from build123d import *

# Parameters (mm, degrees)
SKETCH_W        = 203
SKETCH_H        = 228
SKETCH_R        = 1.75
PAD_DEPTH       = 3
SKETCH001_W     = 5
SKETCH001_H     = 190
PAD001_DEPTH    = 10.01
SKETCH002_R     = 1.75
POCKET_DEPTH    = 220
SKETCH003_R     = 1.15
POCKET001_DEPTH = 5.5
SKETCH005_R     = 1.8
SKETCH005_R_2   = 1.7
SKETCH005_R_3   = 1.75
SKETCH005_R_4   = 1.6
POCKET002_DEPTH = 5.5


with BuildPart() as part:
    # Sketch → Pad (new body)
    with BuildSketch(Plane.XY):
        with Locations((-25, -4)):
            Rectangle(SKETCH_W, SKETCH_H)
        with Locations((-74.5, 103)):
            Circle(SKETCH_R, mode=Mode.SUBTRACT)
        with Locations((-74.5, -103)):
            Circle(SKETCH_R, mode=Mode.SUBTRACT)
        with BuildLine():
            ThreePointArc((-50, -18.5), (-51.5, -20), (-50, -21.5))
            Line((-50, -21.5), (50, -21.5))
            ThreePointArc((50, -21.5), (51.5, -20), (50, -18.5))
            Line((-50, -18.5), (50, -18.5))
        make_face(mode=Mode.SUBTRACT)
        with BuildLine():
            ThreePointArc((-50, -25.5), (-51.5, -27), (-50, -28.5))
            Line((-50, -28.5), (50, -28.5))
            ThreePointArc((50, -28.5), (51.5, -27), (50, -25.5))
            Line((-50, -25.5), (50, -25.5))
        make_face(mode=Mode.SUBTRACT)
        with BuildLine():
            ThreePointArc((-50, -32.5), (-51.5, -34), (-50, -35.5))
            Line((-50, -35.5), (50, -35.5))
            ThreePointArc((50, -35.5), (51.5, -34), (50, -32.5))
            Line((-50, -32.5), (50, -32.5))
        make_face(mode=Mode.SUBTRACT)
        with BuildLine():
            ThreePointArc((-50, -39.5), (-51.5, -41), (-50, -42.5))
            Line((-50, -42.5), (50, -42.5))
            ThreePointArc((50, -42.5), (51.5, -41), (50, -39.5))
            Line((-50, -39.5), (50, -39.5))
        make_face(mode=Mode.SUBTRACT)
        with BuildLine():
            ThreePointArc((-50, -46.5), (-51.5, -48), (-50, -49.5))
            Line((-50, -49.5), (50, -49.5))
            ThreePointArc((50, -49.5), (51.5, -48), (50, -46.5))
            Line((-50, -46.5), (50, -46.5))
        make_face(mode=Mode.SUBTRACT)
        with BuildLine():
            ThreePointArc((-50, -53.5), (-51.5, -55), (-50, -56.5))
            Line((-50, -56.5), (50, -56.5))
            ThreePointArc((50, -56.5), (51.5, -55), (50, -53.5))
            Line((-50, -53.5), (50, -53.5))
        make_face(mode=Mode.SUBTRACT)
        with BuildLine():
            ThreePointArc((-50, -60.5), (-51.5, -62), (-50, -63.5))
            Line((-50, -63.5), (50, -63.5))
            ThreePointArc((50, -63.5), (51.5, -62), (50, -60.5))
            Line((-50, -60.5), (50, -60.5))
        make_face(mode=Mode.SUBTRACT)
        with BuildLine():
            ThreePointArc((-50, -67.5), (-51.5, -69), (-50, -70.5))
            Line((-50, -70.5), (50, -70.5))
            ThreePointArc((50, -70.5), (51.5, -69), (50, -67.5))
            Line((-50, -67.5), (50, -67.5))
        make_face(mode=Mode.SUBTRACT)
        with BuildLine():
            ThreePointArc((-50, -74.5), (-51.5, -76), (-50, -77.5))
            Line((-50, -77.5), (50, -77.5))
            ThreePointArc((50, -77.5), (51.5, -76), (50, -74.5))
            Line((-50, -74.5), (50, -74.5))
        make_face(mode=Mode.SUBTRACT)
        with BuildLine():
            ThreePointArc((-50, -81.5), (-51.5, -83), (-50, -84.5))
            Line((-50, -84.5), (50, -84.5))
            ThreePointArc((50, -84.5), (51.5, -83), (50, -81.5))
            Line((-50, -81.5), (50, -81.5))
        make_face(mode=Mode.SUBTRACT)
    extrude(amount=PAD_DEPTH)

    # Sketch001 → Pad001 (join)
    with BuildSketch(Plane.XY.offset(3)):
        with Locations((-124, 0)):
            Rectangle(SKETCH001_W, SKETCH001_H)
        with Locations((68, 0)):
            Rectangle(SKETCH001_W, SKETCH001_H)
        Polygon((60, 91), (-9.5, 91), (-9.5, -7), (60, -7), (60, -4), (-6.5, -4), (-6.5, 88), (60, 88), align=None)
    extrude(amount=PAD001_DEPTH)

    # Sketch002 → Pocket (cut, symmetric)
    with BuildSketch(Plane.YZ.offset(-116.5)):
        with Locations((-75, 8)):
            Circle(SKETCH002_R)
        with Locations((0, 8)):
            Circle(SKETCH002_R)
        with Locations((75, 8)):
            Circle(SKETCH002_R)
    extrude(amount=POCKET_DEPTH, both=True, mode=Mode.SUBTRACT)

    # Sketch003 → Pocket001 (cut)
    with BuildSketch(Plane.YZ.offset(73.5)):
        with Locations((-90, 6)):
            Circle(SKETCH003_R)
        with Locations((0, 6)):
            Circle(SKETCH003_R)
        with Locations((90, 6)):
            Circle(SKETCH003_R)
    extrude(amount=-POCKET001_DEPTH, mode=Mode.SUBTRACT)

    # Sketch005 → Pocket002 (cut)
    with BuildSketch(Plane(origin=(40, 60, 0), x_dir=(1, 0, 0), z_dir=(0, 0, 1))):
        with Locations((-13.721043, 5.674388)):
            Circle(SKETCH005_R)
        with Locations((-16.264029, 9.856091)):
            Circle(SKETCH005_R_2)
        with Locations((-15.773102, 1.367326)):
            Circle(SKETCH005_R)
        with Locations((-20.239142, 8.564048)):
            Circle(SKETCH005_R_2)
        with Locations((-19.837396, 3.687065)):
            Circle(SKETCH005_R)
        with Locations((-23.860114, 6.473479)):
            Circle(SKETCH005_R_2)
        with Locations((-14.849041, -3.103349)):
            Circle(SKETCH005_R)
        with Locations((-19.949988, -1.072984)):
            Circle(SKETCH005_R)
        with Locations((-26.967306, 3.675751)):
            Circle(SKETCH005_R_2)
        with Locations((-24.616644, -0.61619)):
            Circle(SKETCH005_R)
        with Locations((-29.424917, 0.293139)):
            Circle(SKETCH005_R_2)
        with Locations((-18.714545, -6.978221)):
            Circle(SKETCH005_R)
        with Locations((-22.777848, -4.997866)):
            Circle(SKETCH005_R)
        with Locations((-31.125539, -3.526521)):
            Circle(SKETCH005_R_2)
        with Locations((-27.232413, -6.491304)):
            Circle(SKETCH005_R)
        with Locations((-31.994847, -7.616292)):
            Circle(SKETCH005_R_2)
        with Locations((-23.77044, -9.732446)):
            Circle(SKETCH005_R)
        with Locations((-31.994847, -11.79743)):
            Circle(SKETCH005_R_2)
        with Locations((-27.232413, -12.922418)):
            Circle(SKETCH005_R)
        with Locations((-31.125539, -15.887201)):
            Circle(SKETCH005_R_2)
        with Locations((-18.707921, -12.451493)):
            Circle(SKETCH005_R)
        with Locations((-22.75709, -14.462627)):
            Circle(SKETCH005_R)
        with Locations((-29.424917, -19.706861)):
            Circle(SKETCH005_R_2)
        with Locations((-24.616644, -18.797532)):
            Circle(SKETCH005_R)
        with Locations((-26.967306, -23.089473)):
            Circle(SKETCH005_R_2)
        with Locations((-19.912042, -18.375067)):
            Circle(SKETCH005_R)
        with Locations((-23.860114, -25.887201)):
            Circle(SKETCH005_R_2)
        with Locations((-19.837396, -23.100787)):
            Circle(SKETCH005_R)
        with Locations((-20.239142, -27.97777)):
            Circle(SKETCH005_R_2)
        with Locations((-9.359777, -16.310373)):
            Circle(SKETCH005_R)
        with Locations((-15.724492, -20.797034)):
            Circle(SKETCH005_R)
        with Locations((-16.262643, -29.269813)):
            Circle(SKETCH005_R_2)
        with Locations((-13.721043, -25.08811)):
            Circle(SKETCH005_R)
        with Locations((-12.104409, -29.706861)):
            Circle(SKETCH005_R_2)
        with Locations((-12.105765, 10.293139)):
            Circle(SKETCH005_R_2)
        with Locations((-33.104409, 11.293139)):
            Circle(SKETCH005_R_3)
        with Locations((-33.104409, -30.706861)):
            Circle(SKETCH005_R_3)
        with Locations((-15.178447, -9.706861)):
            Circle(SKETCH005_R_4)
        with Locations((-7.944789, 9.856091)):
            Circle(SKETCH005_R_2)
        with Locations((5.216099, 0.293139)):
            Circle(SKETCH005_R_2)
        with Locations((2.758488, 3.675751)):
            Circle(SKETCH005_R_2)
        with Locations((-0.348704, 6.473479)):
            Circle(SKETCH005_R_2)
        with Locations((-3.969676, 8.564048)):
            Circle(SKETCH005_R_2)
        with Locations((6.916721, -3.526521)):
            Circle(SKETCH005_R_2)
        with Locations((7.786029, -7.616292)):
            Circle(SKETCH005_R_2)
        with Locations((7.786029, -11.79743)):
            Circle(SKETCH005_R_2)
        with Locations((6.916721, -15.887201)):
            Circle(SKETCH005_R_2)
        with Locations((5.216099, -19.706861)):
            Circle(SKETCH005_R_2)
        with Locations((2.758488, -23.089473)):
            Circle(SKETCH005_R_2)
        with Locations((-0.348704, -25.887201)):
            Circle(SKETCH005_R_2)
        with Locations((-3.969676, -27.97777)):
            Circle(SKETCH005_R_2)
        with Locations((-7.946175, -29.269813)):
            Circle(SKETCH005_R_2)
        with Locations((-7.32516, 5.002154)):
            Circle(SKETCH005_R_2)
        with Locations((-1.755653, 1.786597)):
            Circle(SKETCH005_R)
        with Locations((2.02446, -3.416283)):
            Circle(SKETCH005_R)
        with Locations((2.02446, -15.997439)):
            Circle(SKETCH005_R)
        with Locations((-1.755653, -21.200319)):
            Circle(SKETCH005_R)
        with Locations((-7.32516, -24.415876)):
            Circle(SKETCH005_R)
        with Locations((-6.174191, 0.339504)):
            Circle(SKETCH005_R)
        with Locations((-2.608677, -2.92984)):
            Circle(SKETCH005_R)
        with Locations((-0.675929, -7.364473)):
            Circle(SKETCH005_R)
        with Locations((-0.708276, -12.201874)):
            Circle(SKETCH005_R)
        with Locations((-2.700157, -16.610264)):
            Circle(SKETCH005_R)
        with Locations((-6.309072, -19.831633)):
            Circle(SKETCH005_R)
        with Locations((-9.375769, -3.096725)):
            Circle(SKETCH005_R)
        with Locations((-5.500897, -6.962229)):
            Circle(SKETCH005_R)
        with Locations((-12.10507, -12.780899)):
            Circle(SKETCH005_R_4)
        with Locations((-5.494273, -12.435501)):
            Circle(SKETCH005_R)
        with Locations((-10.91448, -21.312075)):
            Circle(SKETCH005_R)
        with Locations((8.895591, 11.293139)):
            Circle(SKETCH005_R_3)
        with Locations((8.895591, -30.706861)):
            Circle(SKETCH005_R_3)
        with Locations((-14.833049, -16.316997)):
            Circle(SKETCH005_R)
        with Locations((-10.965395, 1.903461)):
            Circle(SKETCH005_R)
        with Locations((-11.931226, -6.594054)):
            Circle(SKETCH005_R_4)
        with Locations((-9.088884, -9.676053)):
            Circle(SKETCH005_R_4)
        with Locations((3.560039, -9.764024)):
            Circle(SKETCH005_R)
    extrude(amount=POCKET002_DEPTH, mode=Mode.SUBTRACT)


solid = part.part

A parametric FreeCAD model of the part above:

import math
import FreeCAD as App
import Part
import Sketcher

doc = App.newDocument("Part")
body = doc.addObject("PartDesign::Body", "Body")

# Sketch on XY plane
sketch1 = body.newObject("Sketcher::SketchObject", "Sketch")
sketch1.AttachmentSupport = (doc.getObject("XY_Plane"), [""])
sketch1.MapMode = "FlatFace"
sketch1.addGeometry([
    Part.LineSegment(App.Vector(-126.5, 110, 0), App.Vector(-126.5, -118, 0)),  # 0
    Part.LineSegment(App.Vector(-126.5, -118, 0), App.Vector(76.5, -118, 0)),  # 1
    Part.LineSegment(App.Vector(76.5, -118, 0), App.Vector(76.5, 110, 0)),  # 2
    Part.LineSegment(App.Vector(76.5, 110, 0), App.Vector(-126.5, 110, 0)),  # 3
    Part.Circle(App.Vector(-74.5, -103, 0), App.Vector(0, 0, 1), 1.8),  # 4
    Part.ArcOfCircle(Part.Circle(App.Vector(-50, -83, 0), App.Vector(0, 0, 1), 1.5), math.radians(90), math.radians(270)),  # 5
    Part.LineSegment(App.Vector(-50, -81.5, 0), App.Vector(50, -81.5, 0)),  # 6
    Part.ArcOfCircle(Part.Circle(App.Vector(50, -83, 0), App.Vector(0, 0, 1), 1.5), math.radians(-90), math.radians(90)),  # 7
    Part.LineSegment(App.Vector(50, -84.5, 0), App.Vector(-50, -84.5, 0)),  # 8
    Part.ArcOfCircle(Part.Circle(App.Vector(-50, -76, 0), App.Vector(0, 0, 1), 1.5), math.radians(90), math.radians(270)),  # 9
    Part.LineSegment(App.Vector(-50, -74.5, 0), App.Vector(50, -74.5, 0)),  # 10
    Part.ArcOfCircle(Part.Circle(App.Vector(50, -76, 0), App.Vector(0, 0, 1), 1.5), math.radians(-90), math.radians(90)),  # 11
    Part.LineSegment(App.Vector(50, -77.5, 0), App.Vector(-50, -77.5, 0)),  # 12
    Part.ArcOfCircle(Part.Circle(App.Vector(-50, -69, 0), App.Vector(0, 0, 1), 1.5), math.radians(90), math.radians(270)),  # 13
    Part.LineSegment(App.Vector(-50, -67.5, 0), App.Vector(50, -67.5, 0)),  # 14
    Part.ArcOfCircle(Part.Circle(App.Vector(50, -69, 0), App.Vector(0, 0, 1), 1.5), math.radians(-90), math.radians(90)),  # 15
    Part.LineSegment(App.Vector(50, -70.5, 0), App.Vector(-50, -70.5, 0)),  # 16
    Part.ArcOfCircle(Part.Circle(App.Vector(-50, -62, 0), App.Vector(0, 0, 1), 1.5), math.radians(90), math.radians(270)),  # 17
    Part.LineSegment(App.Vector(-50, -60.5, 0), App.Vector(50, -60.5, 0)),  # 18
    Part.ArcOfCircle(Part.Circle(App.Vector(50, -62, 0), App.Vector(0, 0, 1), 1.5), math.radians(-90), math.radians(90)),  # 19
    Part.LineSegment(App.Vector(50, -63.5, 0), App.Vector(-50, -63.5, 0)),  # 20
    Part.ArcOfCircle(Part.Circle(App.Vector(-50, -55, 0), App.Vector(0, 0, 1), 1.5), math.radians(90), math.radians(270)),  # 21
    Part.LineSegment(App.Vector(-50, -53.5, 0), App.Vector(50, -53.5, 0)),  # 22
    Part.ArcOfCircle(Part.Circle(App.Vector(50, -55, 0), App.Vector(0, 0, 1), 1.5), math.radians(-90), math.radians(90)),  # 23
    Part.LineSegment(App.Vector(50, -56.5, 0), App.Vector(-50, -56.5, 0)),  # 24
    Part.ArcOfCircle(Part.Circle(App.Vector(-50, -48, 0), App.Vector(0, 0, 1), 1.5), math.radians(90), math.radians(270)),  # 25
    Part.LineSegment(App.Vector(-50, -46.5, 0), App.Vector(50, -46.5, 0)),  # 26
    Part.ArcOfCircle(Part.Circle(App.Vector(50, -48, 0), App.Vector(0, 0, 1), 1.5), math.radians(-90), math.radians(90)),  # 27
    Part.LineSegment(App.Vector(50, -49.5, 0), App.Vector(-50, -49.5, 0)),  # 28
    Part.ArcOfCircle(Part.Circle(App.Vector(-50, -41, 0), App.Vector(0, 0, 1), 1.5), math.radians(90), math.radians(270)),  # 29
    Part.LineSegment(App.Vector(-50, -39.5, 0), App.Vector(50, -39.5, 0)),  # 30
    Part.ArcOfCircle(Part.Circle(App.Vector(50, -41, 0), App.Vector(0, 0, 1), 1.5), math.radians(-90), math.radians(90)),  # 31
    Part.LineSegment(App.Vector(50, -42.5, 0), App.Vector(-50, -42.5, 0)),  # 32
    Part.ArcOfCircle(Part.Circle(App.Vector(-50, -34, 0), App.Vector(0, 0, 1), 1.5), math.radians(90), math.radians(270)),  # 33
    Part.LineSegment(App.Vector(-50, -32.5, 0), App.Vector(50, -32.5, 0)),  # 34
    Part.ArcOfCircle(Part.Circle(App.Vector(50, -34, 0), App.Vector(0, 0, 1), 1.5), math.radians(-90), math.radians(90)),  # 35
    Part.LineSegment(App.Vector(50, -35.5, 0), App.Vector(-50, -35.5, 0)),  # 36
    Part.ArcOfCircle(Part.Circle(App.Vector(-50, -27, 0), App.Vector(0, 0, 1), 1.5), math.radians(90), math.radians(270)),  # 37
    Part.LineSegment(App.Vector(-50, -25.5, 0), App.Vector(50, -25.5, 0)),  # 38
    Part.ArcOfCircle(Part.Circle(App.Vector(50, -27, 0), App.Vector(0, 0, 1), 1.5), math.radians(-90), math.radians(90)),  # 39
    Part.LineSegment(App.Vector(50, -28.5, 0), App.Vector(-50, -28.5, 0)),  # 40
    Part.ArcOfCircle(Part.Circle(App.Vector(-50, -20, 0), App.Vector(0, 0, 1), 1.5), math.radians(90), math.radians(270)),  # 41
    Part.LineSegment(App.Vector(-50, -18.5, 0), App.Vector(50, -18.5, 0)),  # 42
    Part.ArcOfCircle(Part.Circle(App.Vector(50, -20, 0), App.Vector(0, 0, 1), 1.5), math.radians(-90), math.radians(90)),  # 43
    Part.LineSegment(App.Vector(50, -21.5, 0), App.Vector(-50, -21.5, 0)),  # 44
    Part.Circle(App.Vector(-74.5, 103, 0), App.Vector(0, 0, 1), 1.8),  # 45
], False)
sketch1.addConstraint([
    Sketcher.Constraint("Coincident", 0, 2, 1, 1),
    Sketcher.Constraint("Coincident", 1, 2, 2, 1),
    Sketcher.Constraint("Coincident", 2, 2, 3, 1),
    Sketcher.Constraint("Coincident", 3, 2, 0, 1),
    Sketcher.Constraint("Tangent", 5, 1, 6, 1),
    Sketcher.Constraint("Tangent", 6, 2, 7, 2),
    Sketcher.Constraint("Tangent", 7, 1, 8, 1),
    Sketcher.Constraint("Tangent", 8, 2, 5, 2),
    Sketcher.Constraint("Tangent", 9, 1, 10, 1),
    Sketcher.Constraint("Tangent", 10, 2, 11, 2),
    Sketcher.Constraint("Tangent", 11, 1, 12, 1),
    Sketcher.Constraint("Tangent", 12, 2, 9, 2),
    Sketcher.Constraint("Tangent", 13, 1, 14, 1),
    Sketcher.Constraint("Tangent", 14, 2, 15, 2),
    Sketcher.Constraint("Tangent", 15, 1, 16, 1),
    Sketcher.Constraint("Tangent", 16, 2, 13, 2),
    Sketcher.Constraint("Tangent", 17, 1, 18, 1),
    Sketcher.Constraint("Tangent", 18, 2, 19, 2),
    Sketcher.Constraint("Tangent", 19, 1, 20, 1),
    Sketcher.Constraint("Tangent", 20, 2, 17, 2),
    Sketcher.Constraint("Tangent", 21, 1, 22, 1),
    Sketcher.Constraint("Tangent", 22, 2, 23, 2),
    Sketcher.Constraint("Tangent", 23, 1, 24, 1),
    Sketcher.Constraint("Tangent", 24, 2, 21, 2),
    Sketcher.Constraint("Tangent", 25, 1, 26, 1),
    Sketcher.Constraint("Tangent", 26, 2, 27, 2),
    Sketcher.Constraint("Tangent", 27, 1, 28, 1),
    Sketcher.Constraint("Tangent", 28, 2, 25, 2),
    Sketcher.Constraint("Tangent", 29, 1, 30, 1),
    Sketcher.Constraint("Tangent", 30, 2, 31, 2),
    Sketcher.Constraint("Tangent", 31, 1, 32, 1),
    Sketcher.Constraint("Tangent", 32, 2, 29, 2),
    Sketcher.Constraint("Tangent", 33, 1, 34, 1),
    Sketcher.Constraint("Tangent", 34, 2, 35, 2),
    Sketcher.Constraint("Tangent", 35, 1, 36, 1),
    Sketcher.Constraint("Tangent", 36, 2, 33, 2),
    Sketcher.Constraint("Tangent", 37, 1, 38, 1),
    Sketcher.Constraint("Tangent", 38, 2, 39, 2),
    Sketcher.Constraint("Tangent", 39, 1, 40, 1),
    Sketcher.Constraint("Tangent", 40, 2, 37, 2),
    Sketcher.Constraint("Tangent", 41, 1, 42, 1),
    Sketcher.Constraint("Tangent", 42, 2, 43, 2),
    Sketcher.Constraint("Tangent", 43, 1, 44, 1),
    Sketcher.Constraint("Tangent", 44, 2, 41, 2),
    Sketcher.Constraint("Vertical", 0),
    Sketcher.Constraint("Horizontal", 1),
    Sketcher.Constraint("Vertical", 2),
    Sketcher.Constraint("Horizontal", 3),
    Sketcher.Constraint("Horizontal", 6),
    Sketcher.Constraint("Horizontal", 8),
    Sketcher.Constraint("Horizontal", 10),
    Sketcher.Constraint("Horizontal", 12),
    Sketcher.Constraint("Horizontal", 14),
    Sketcher.Constraint("Horizontal", 16),
    Sketcher.Constraint("Horizontal", 18),
    Sketcher.Constraint("Horizontal", 20),
    Sketcher.Constraint("Horizontal", 22),
    Sketcher.Constraint("Horizontal", 24),
    Sketcher.Constraint("Horizontal", 26),
    Sketcher.Constraint("Horizontal", 28),
    Sketcher.Constraint("Horizontal", 30),
    Sketcher.Constraint("Horizontal", 32),
    Sketcher.Constraint("Horizontal", 34),
    Sketcher.Constraint("Horizontal", 36),
    Sketcher.Constraint("Horizontal", 38),
    Sketcher.Constraint("Horizontal", 40),
    Sketcher.Constraint("Horizontal", 42),
    Sketcher.Constraint("Horizontal", 44),
    Sketcher.Constraint("Equal", 7, 9),
    Sketcher.Constraint("Equal", 11, 13),
    Sketcher.Constraint("Equal", 15, 17),
    Sketcher.Constraint("Equal", 19, 21),
    Sketcher.Constraint("Equal", 23, 25),
    Sketcher.Constraint("Equal", 27, 29),
    Sketcher.Constraint("Equal", 31, 33),
    Sketcher.Constraint("Equal", 35, 37),
    Sketcher.Constraint("Equal", 39, 41),
    Sketcher.Constraint("Equal", 4, 45),
    Sketcher.Constraint("Symmetric", 4, 3, 45, 3, -1),
    Sketcher.Constraint("Vertical", 5, 3, 9, 3),
    Sketcher.Constraint("Vertical", 7, 3, 11, 3),
    Sketcher.Constraint("Vertical", 9, 3, 13, 3),
    Sketcher.Constraint("Vertical", 11, 3, 15, 3),
    Sketcher.Constraint("Vertical", 13, 3, 17, 3),
    Sketcher.Constraint("Vertical", 15, 3, 19, 3),
    Sketcher.Constraint("Vertical", 17, 3, 21, 3),
    Sketcher.Constraint("Vertical", 19, 3, 23, 3),
    Sketcher.Constraint("Vertical", 21, 3, 25, 3),
    Sketcher.Constraint("Vertical", 23, 3, 27, 3),
    Sketcher.Constraint("Vertical", 25, 3, 29, 3),
    Sketcher.Constraint("Vertical", 27, 3, 31, 3),
    Sketcher.Constraint("Vertical", 29, 3, 33, 3),
    Sketcher.Constraint("Vertical", 31, 3, 35, 3),
    Sketcher.Constraint("Vertical", 33, 3, 37, 3),
    Sketcher.Constraint("Vertical", 35, 3, 39, 3),
    Sketcher.Constraint("Vertical", 37, 3, 41, 3),
    Sketcher.Constraint("Vertical", 39, 3, 43, 3),
    Sketcher.Constraint("Diameter", 4, 3.5),
    Sketcher.Constraint("Radius", 5, 1.5),
    Sketcher.Constraint("DistanceX", 1, 1, 1, 2, 203.0),
    Sketcher.Constraint("DistanceX", 6, 1, 6, 2, 100.0),
    Sketcher.Constraint("DistanceY", 0, 2, 0, 1, 228.0),
    Sketcher.Constraint("DistanceY", 4, 3, -1, 1, 103.0),
    Sketcher.Constraint("DistanceX", 5, 3, -1, 1, 50.0),
    Sketcher.Constraint("DistanceY", 5, 3, -1, 1, 83.0),
    Sketcher.Constraint("DistanceY", 9, 3, -1, 1, 76.0),
    Sketcher.Constraint("DistanceY", 13, 3, -1, 1, 69.0),
    Sketcher.Constraint("DistanceY", 17, 3, -1, 1, 62.0),
    Sketcher.Constraint("DistanceY", 21, 3, -1, 1, 55.0),
    Sketcher.Constraint("DistanceY", 25, 3, -1, 1, 48.0),
    Sketcher.Constraint("DistanceY", 29, 3, -1, 1, 41.0),
    Sketcher.Constraint("DistanceY", 33, 3, -1, 1, 34.0),
    Sketcher.Constraint("DistanceY", 37, 3, -1, 1, 27.0),
    Sketcher.Constraint("DistanceY", 41, 3, -1, 1, 20.0),
    Sketcher.Constraint("DistanceY", 0, 2, -1, 1, 118.0),
    Sketcher.Constraint("DistanceX", 4, 3, -1, 1, 74.5),
    Sketcher.Constraint("DistanceX", 0, 2, -1, 1, 126.5),
])
pad1 = body.newObject("PartDesign::Pad", "Pad")
pad1.Profile = sketch1
pad1.Length = 3

# Sketch on XY plane
sketch2 = body.newObject("Sketcher::SketchObject", "Sketch001")
sketch2.AttachmentSupport = (doc.getObject("XY_Plane"), [""])
sketch2.MapMode = "FlatFace"
sketch2.AttachmentOffset = App.Placement(App.Vector(0, 0, 3), App.Rotation())
sketch2.addGeometry([
    Part.LineSegment(App.Vector(-126.5, 95, 0), App.Vector(-126.5, -95, 0)),  # 0
    Part.LineSegment(App.Vector(-126.5, -95, 0), App.Vector(-121.5, -95, 0)),  # 1
    Part.LineSegment(App.Vector(-121.5, -95, 0), App.Vector(-121.5, 95, 0)),  # 2
    Part.LineSegment(App.Vector(-121.5, 95, 0), App.Vector(-126.5, 95, 0)),  # 3
    Part.LineSegment(App.Vector(65.5, 95, 0), App.Vector(65.5, -95, 0)),  # 4
    Part.LineSegment(App.Vector(65.5, -95, 0), App.Vector(70.5, -95, 0)),  # 5
    Part.LineSegment(App.Vector(70.5, -95, 0), App.Vector(70.5, 95, 0)),  # 6
    Part.LineSegment(App.Vector(70.5, 95, 0), App.Vector(65.5, 95, 0)),  # 7
    Part.LineSegment(App.Vector(60, 91, 0), App.Vector(-9.5, 91, 0)),  # 8
    Part.LineSegment(App.Vector(-9.5, 91, 0), App.Vector(-9.5, -7, 0)),  # 9
    Part.LineSegment(App.Vector(-9.5, -7, 0), App.Vector(60, -7, 0)),  # 10
    Part.LineSegment(App.Vector(60, -7, 0), App.Vector(60, -4, 0)),  # 11
    Part.LineSegment(App.Vector(60, -4, 0), App.Vector(-6.5, -4, 0)),  # 12
    Part.LineSegment(App.Vector(-6.5, -4, 0), App.Vector(-6.5, 88, 0)),  # 13
    Part.LineSegment(App.Vector(-6.5, 88, 0), App.Vector(60, 88, 0)),  # 14
    Part.LineSegment(App.Vector(60, 88, 0), App.Vector(60, 91, 0)),  # 15
], False)
sketch2.addConstraint([
    Sketcher.Constraint("Coincident", 0, 2, 1, 1),
    Sketcher.Constraint("Coincident", 1, 2, 2, 1),
    Sketcher.Constraint("Coincident", 2, 2, 3, 1),
    Sketcher.Constraint("Coincident", 3, 2, 0, 1),
    Sketcher.Constraint("Coincident", 4, 2, 5, 1),
    Sketcher.Constraint("Coincident", 5, 2, 6, 1),
    Sketcher.Constraint("Coincident", 6, 2, 7, 1),
    Sketcher.Constraint("Coincident", 7, 2, 4, 1),
    Sketcher.Constraint("Coincident", 8, 2, 9, 1),
    Sketcher.Constraint("Coincident", 9, 2, 10, 1),
    Sketcher.Constraint("Coincident", 10, 2, 11, 1),
    Sketcher.Constraint("Coincident", 11, 2, 12, 1),
    Sketcher.Constraint("Coincident", 12, 2, 13, 1),
    Sketcher.Constraint("Coincident", 13, 2, 14, 1),
    Sketcher.Constraint("Coincident", 14, 2, 15, 1),
    Sketcher.Constraint("Coincident", 15, 2, 8, 1),
    Sketcher.Constraint("Vertical", 0),
    Sketcher.Constraint("Horizontal", 1),
    Sketcher.Constraint("Vertical", 2),
    Sketcher.Constraint("Horizontal", 3),
    Sketcher.Constraint("Vertical", 4),
    Sketcher.Constraint("Horizontal", 5),
    Sketcher.Constraint("Vertical", 6),
    Sketcher.Constraint("Horizontal", 7),
    Sketcher.Constraint("Horizontal", 8),
    Sketcher.Constraint("Vertical", 9),
    Sketcher.Constraint("Horizontal", 10),
    Sketcher.Constraint("Vertical", 11),
    Sketcher.Constraint("Horizontal", 12),
    Sketcher.Constraint("Vertical", 13),
    Sketcher.Constraint("Horizontal", 14),
    Sketcher.Constraint("Vertical", 15),
    Sketcher.Constraint("Horizontal", 1, 2, 4, 2),
    Sketcher.Constraint("Horizontal", 3, 2, 6, 2),
    Sketcher.Constraint("Vertical", 11, 2, 14, 2),
    Sketcher.Constraint("Equal", 3, 5),
    Sketcher.Constraint("Equal", 11, 15),
    Sketcher.Constraint("DistanceX", 1, 1, 1, 2, 5.0),
    Sketcher.Constraint("DistanceY", 0, 2, 0, 1, 190.0),
    Sketcher.Constraint("DistanceY", 9, 2, 9, 1, 98.0),
    Sketcher.Constraint("DistanceY", 11, 1, 11, 2, 3.0),
    Sketcher.Constraint("DistanceX", 8, 2, 8, 1, 69.5),
    Sketcher.Constraint("DistanceX", 12, 2, 12, 1, 66.5),
    Sketcher.Constraint("DistanceY", 0, 2, -1, 1, 95.0),
    Sketcher.Constraint("DistanceY", -1, 1, 8, 2, 91.0),
    Sketcher.Constraint("DistanceX", -1, 1, 10, 2, 60.0),
    Sketcher.Constraint("DistanceX", 1, 2, 4, 2, 187.0),
    Sketcher.Constraint("DistanceX", 8, 2, 7, 2, 75.0),
])
pad2 = body.newObject("PartDesign::Pad", "Pad001")
pad2.Profile = sketch2
pad2.Length = 10.01

# Sketch on YZ plane
sketch3 = body.newObject("Sketcher::SketchObject", "Sketch002")
sketch3.AttachmentSupport = (doc.getObject("YZ_Plane"), [""])
sketch3.MapMode = "FlatFace"
sketch3.AttachmentOffset = App.Placement(App.Vector(0, 0, -116.5), App.Rotation())
sketch3.addGeometry([
    Part.Circle(App.Vector(-75, 8, 0), App.Vector(0, 0, 1), 1.8),
    Part.Circle(App.Vector(0, 8, 0), App.Vector(0, 0, 1), 1.8),
    Part.Circle(App.Vector(75, 8, 0), App.Vector(0, 0, 1), 1.8),
], False)
sketch3.addConstraint([
    Sketcher.Constraint("Equal", 0, 1),
    Sketcher.Constraint("Equal", 1, 2),
    Sketcher.Constraint("Symmetric", 0, 3, 2, 3, -2),
    Sketcher.Constraint("PointOnObject", 1, 3, -2),
    Sketcher.Constraint("Horizontal", 0, 3, 1, 3),
    Sketcher.Constraint("Diameter", 0, 3.5),
    Sketcher.Constraint("DistanceX", 0, 3, -1, 1, 75.0),
    Sketcher.Constraint("DistanceY", -1, 1, 0, 3, 8.0),
])
pocket1 = body.newObject("PartDesign::Pocket", "Pocket")
pocket1.Profile = sketch3
pocket1.Length = 440
pocket1.Midplane = True

# Sketch on YZ plane
sketch4 = body.newObject("Sketcher::SketchObject", "Sketch003")
sketch4.AttachmentSupport = (doc.getObject("YZ_Plane"), [""])
sketch4.MapMode = "FlatFace"
sketch4.AttachmentOffset = App.Placement(App.Vector(0, 0, 73.5), App.Rotation())
sketch4.addGeometry([
    Part.Circle(App.Vector(-90, 6, 0), App.Vector(0, 0, 1), 1.1),
    Part.Circle(App.Vector(0, 6, 0), App.Vector(0, 0, 1), 1.1),
    Part.Circle(App.Vector(90, 6, 0), App.Vector(0, 0, 1), 1.1),
], False)
sketch4.addConstraint([
    Sketcher.Constraint("Equal", 0, 1),
    Sketcher.Constraint("Equal", 1, 2),
    Sketcher.Constraint("Symmetric", 0, 3, 2, 3, -2),
    Sketcher.Constraint("PointOnObject", 1, 3, -2),
    Sketcher.Constraint("Horizontal", 0, 3, 1, 3),
    Sketcher.Constraint("Diameter", 0, 2.3),
    Sketcher.Constraint("DistanceX", 0, 3, -1, 1, 90.0),
    Sketcher.Constraint("DistanceY", -1, 1, 0, 3, 6.0),
])
pocket2 = body.newObject("PartDesign::Pocket", "Pocket001")
pocket2.Profile = sketch4
pocket2.Length = 5.5

# Sketch on XY plane
sketch5 = body.newObject("Sketcher::SketchObject", "Sketch004")
sketch5.AttachmentSupport = (doc.getObject("XY_Plane"), [""])
sketch5.MapMode = "FlatFace"
sketch5.addGeometry([
    Part.Circle(App.Vector(26.3, 65.7, 0), App.Vector(0, 0, 1), 1.8),  # 0
    Part.Circle(App.Vector(23.7, 69.9, 0), App.Vector(0, 0, 1), 1.7),  # 1
    Part.Circle(App.Vector(24.2, 61.4, 0), App.Vector(0, 0, 1), 1.8),  # 2
    Part.Circle(App.Vector(19.8, 68.6, 0), App.Vector(0, 0, 1), 1.7),  # 3
    Part.Circle(App.Vector(20.2, 63.7, 0), App.Vector(0, 0, 1), 1.8),  # 4
    Part.Circle(App.Vector(16.1, 66.5, 0), App.Vector(0, 0, 1), 1.7),  # 5
    Part.Circle(App.Vector(25.2, 56.9, 0), App.Vector(0, 0, 1), 1.8),  # 6
    Part.Circle(App.Vector(20.1, 58.9, 0), App.Vector(0, 0, 1), 1.8),  # 7
    Part.Circle(App.Vector(13, 63.7, 0), App.Vector(0, 0, 1), 1.7),  # 8
    Part.Circle(App.Vector(15.4, 59.4, 0), App.Vector(0, 0, 1), 1.8),  # 9
    Part.Circle(App.Vector(10.6, 60.3, 0), App.Vector(0, 0, 1), 1.7),  # 10
    Part.Circle(App.Vector(21.3, 53, 0), App.Vector(0, 0, 1), 1.8),  # 11
    Part.Circle(App.Vector(17.2, 55, 0), App.Vector(0, 0, 1), 1.8),  # 12
    Part.Circle(App.Vector(8.9, 56.5, 0), App.Vector(0, 0, 1), 1.7),  # 13
    Part.Circle(App.Vector(12.8, 53.5, 0), App.Vector(0, 0, 1), 1.8),  # 14
    Part.Circle(App.Vector(8, 52.4, 0), App.Vector(0, 0, 1), 1.7),  # 15
    Part.Circle(App.Vector(16.2, 50.3, 0), App.Vector(0, 0, 1), 1.8),  # 16
    Part.Circle(App.Vector(8, 48.2, 0), App.Vector(0, 0, 1), 1.7),  # 17
    Part.Circle(App.Vector(12.8, 47.1, 0), App.Vector(0, 0, 1), 1.8),  # 18
    Part.Circle(App.Vector(8.9, 44.1, 0), App.Vector(0, 0, 1), 1.7),  # 19
    Part.Circle(App.Vector(21.3, 47.5, 0), App.Vector(0, 0, 1), 1.8),  # 20
    Part.Circle(App.Vector(17.2, 45.5, 0), App.Vector(0, 0, 1), 1.8),  # 21
    Part.Circle(App.Vector(10.6, 40.3, 0), App.Vector(0, 0, 1), 1.7),  # 22
    Part.Circle(App.Vector(15.4, 41.2, 0), App.Vector(0, 0, 1), 1.8),  # 23
    Part.Circle(App.Vector(13, 36.9, 0), App.Vector(0, 0, 1), 1.7),  # 24
    Part.Circle(App.Vector(20.1, 41.6, 0), App.Vector(0, 0, 1), 1.8),  # 25
    Part.Circle(App.Vector(16.1, 34.1, 0), App.Vector(0, 0, 1), 1.7),  # 26
    Part.Circle(App.Vector(20.2, 36.9, 0), App.Vector(0, 0, 1), 1.8),  # 27
    Part.Circle(App.Vector(19.8, 32, 0), App.Vector(0, 0, 1), 1.7),  # 28
    Part.Circle(App.Vector(30.6, 43.7, 0), App.Vector(0, 0, 1), 1.8),  # 29
    Part.Circle(App.Vector(24.3, 39.2, 0), App.Vector(0, 0, 1), 1.8),  # 30
    Part.Circle(App.Vector(23.7, 30.7, 0), App.Vector(0, 0, 1), 1.7),  # 31
    Part.Circle(App.Vector(26.3, 34.9, 0), App.Vector(0, 0, 1), 1.8),  # 32
    Part.Circle(App.Vector(27.9, 30.3, 0), App.Vector(0, 0, 1), 1.7),  # 33
    Part.Circle(App.Vector(27.9, 70.3, 0), App.Vector(0, 0, 1), 1.7),  # 34
    Part.Circle(App.Vector(6.9, 71.3, 0), App.Vector(0, 0, 1), 1.8),  # 35
    Part.Circle(App.Vector(6.9, 29.3, 0), App.Vector(0, 0, 1), 1.8),  # 36
    Part.Circle(App.Vector(24.8, 50.3, 0), App.Vector(0, 0, 1), 1.6),  # 37
    Part.Circle(App.Vector(32.1, 69.9, 0), App.Vector(0, 0, 1), 1.7),  # 38
    Part.Circle(App.Vector(45.2, 60.3, 0), App.Vector(0, 0, 1), 1.7),  # 39
    Part.Circle(App.Vector(42.8, 63.7, 0), App.Vector(0, 0, 1), 1.7),  # 40
    Part.Circle(App.Vector(39.7, 66.5, 0), App.Vector(0, 0, 1), 1.7),  # 41
    Part.Circle(App.Vector(36, 68.6, 0), App.Vector(0, 0, 1), 1.7),  # 42
    Part.Circle(App.Vector(46.9, 56.5, 0), App.Vector(0, 0, 1), 1.7),  # 43
    Part.Circle(App.Vector(47.8, 52.4, 0), App.Vector(0, 0, 1), 1.7),  # 44
    Part.Circle(App.Vector(47.8, 48.2, 0), App.Vector(0, 0, 1), 1.7),  # 45
    Part.Circle(App.Vector(46.9, 44.1, 0), App.Vector(0, 0, 1), 1.7),  # 46
    Part.Circle(App.Vector(45.2, 40.3, 0), App.Vector(0, 0, 1), 1.7),  # 47
    Part.Circle(App.Vector(42.8, 36.9, 0), App.Vector(0, 0, 1), 1.7),  # 48
    Part.Circle(App.Vector(39.7, 34.1, 0), App.Vector(0, 0, 1), 1.7),  # 49
    Part.Circle(App.Vector(36, 32, 0), App.Vector(0, 0, 1), 1.7),  # 50
    Part.Circle(App.Vector(32.1, 30.7, 0), App.Vector(0, 0, 1), 1.7),  # 51
    Part.Circle(App.Vector(32.7, 65, 0), App.Vector(0, 0, 1), 1.7),  # 52
    Part.Circle(App.Vector(38.2, 61.8, 0), App.Vector(0, 0, 1), 1.8),  # 53
    Part.Circle(App.Vector(42, 56.6, 0), App.Vector(0, 0, 1), 1.8),  # 54
    Part.Circle(App.Vector(42, 44, 0), App.Vector(0, 0, 1), 1.8),  # 55
    Part.Circle(App.Vector(38.2, 38.8, 0), App.Vector(0, 0, 1), 1.8),  # 56
    Part.Circle(App.Vector(32.7, 35.6, 0), App.Vector(0, 0, 1), 1.8),  # 57
    Part.Circle(App.Vector(33.8, 60.3, 0), App.Vector(0, 0, 1), 1.8),  # 58
    Part.Circle(App.Vector(37.4, 57.1, 0), App.Vector(0, 0, 1), 1.8),  # 59
    Part.Circle(App.Vector(39.3, 52.6, 0), App.Vector(0, 0, 1), 1.8),  # 60
    Part.Circle(App.Vector(39.3, 47.8, 0), App.Vector(0, 0, 1), 1.8),  # 61
    Part.Circle(App.Vector(37.3, 43.4, 0), App.Vector(0, 0, 1), 1.8),  # 62
    Part.Circle(App.Vector(33.7, 40.2, 0), App.Vector(0, 0, 1), 1.8),  # 63
    Part.Circle(App.Vector(30.6, 56.9, 0), App.Vector(0, 0, 1), 1.8),  # 64
    Part.Circle(App.Vector(34.5, 53, 0), App.Vector(0, 0, 1), 1.8),  # 65
    Part.Circle(App.Vector(27.9, 47.2, 0), App.Vector(0, 0, 1), 1.6),  # 66
    Part.Circle(App.Vector(34.5, 47.6, 0), App.Vector(0, 0, 1), 1.8),  # 67
    Part.Circle(App.Vector(29.1, 38.7, 0), App.Vector(0, 0, 1), 1.8),  # 68
    Part.Circle(App.Vector(48.9, 71.3, 0), App.Vector(0, 0, 1), 1.8),  # 69
    Part.Circle(App.Vector(48.9, 29.3, 0), App.Vector(0, 0, 1), 1.8),  # 70
    Part.Circle(App.Vector(25.2, 43.7, 0), App.Vector(0, 0, 1), 1.8),  # 71
    Part.Circle(App.Vector(29, 61.9, 0), App.Vector(0, 0, 1), 1.8),  # 72
    Part.Circle(App.Vector(28.1, 53.4, 0), App.Vector(0, 0, 1), 1.6),  # 73
    Part.Circle(App.Vector(30.9, 50.3, 0), App.Vector(0, 0, 1), 1.6),  # 74
    Part.Circle(App.Vector(43.6, 50.2, 0), App.Vector(0, 0, 1), 1.8),  # 75
], False)
sketch5.addConstraint([
    Sketcher.Constraint("Equal", 0, 2),
    Sketcher.Constraint("Equal", 1, 3),
    Sketcher.Constraint("Equal", 2, 4),
    Sketcher.Constraint("Equal", 3, 5),
    Sketcher.Constraint("Equal", 4, 6),
    Sketcher.Constraint("Equal", 6, 7),
    Sketcher.Constraint("Equal", 5, 8),
    Sketcher.Constraint("Equal", 7, 9),
    Sketcher.Constraint("Equal", 8, 10),
    Sketcher.Constraint("Equal", 9, 11),
    Sketcher.Constraint("Equal", 11, 12),
    Sketcher.Constraint("Equal", 10, 13),
    Sketcher.Constraint("Equal", 12, 14),
    Sketcher.Constraint("Equal", 13, 15),
    Sketcher.Constraint("Equal", 14, 16),
    Sketcher.Constraint("Equal", 15, 17),
    Sketcher.Constraint("Equal", 16, 18),
    Sketcher.Constraint("Equal", 17, 19),
    Sketcher.Constraint("Equal", 18, 20),
    Sketcher.Constraint("Equal", 20, 21),
    Sketcher.Constraint("Equal", 19, 22),
    Sketcher.Constraint("Equal", 21, 23),
    Sketcher.Constraint("Equal", 22, 24),
    Sketcher.Constraint("Equal", 23, 25),
    Sketcher.Constraint("Equal", 24, 26),
    Sketcher.Constraint("Equal", 25, 27),
    Sketcher.Constraint("Equal", 26, 28),
    Sketcher.Constraint("Equal", 27, 29),
    Sketcher.Constraint("Equal", 29, 30),
    Sketcher.Constraint("Equal", 28, 31),
    Sketcher.Constraint("Equal", 30, 32),
    Sketcher.Constraint("Equal", 31, 33),
    Sketcher.Constraint("Equal", 33, 34),
    Sketcher.Constraint("Equal", 35, 36),
    Sketcher.Constraint("Equal", 34, 38),
    Sketcher.Constraint("Equal", 38, 39),
    Sketcher.Constraint("Equal", 39, 40),
    Sketcher.Constraint("Equal", 40, 41),
    Sketcher.Constraint("Equal", 41, 42),
    Sketcher.Constraint("Equal", 42, 43),
    Sketcher.Constraint("Equal", 43, 44),
    Sketcher.Constraint("Equal", 44, 45),
    Sketcher.Constraint("Equal", 45, 46),
    Sketcher.Constraint("Equal", 46, 47),
    Sketcher.Constraint("Equal", 47, 48),
    Sketcher.Constraint("Equal", 48, 49),
    Sketcher.Constraint("Equal", 49, 50),
    Sketcher.Constraint("Equal", 50, 51),
    Sketcher.Constraint("Equal", 51, 52),
    Sketcher.Constraint("Equal", 32, 53),
    Sketcher.Constraint("Equal", 53, 54),
    Sketcher.Constraint("Equal", 54, 55),
    Sketcher.Constraint("Equal", 55, 56),
    Sketcher.Constraint("Equal", 56, 57),
    Sketcher.Constraint("Equal", 57, 58),
    Sketcher.Constraint("Equal", 58, 59),
    Sketcher.Constraint("Equal", 59, 60),
    Sketcher.Constraint("Equal", 60, 61),
    Sketcher.Constraint("Equal", 61, 62),
    Sketcher.Constraint("Equal", 62, 63),
    Sketcher.Constraint("Equal", 63, 64),
    Sketcher.Constraint("Equal", 64, 65),
    Sketcher.Constraint("Equal", 37, 66),
    Sketcher.Constraint("Equal", 65, 67),
    Sketcher.Constraint("Equal", 67, 68),
    Sketcher.Constraint("Equal", 36, 69),
    Sketcher.Constraint("Equal", 69, 70),
    Sketcher.Constraint("Equal", 68, 71),
    Sketcher.Constraint("Equal", 71, 72),
    Sketcher.Constraint("Equal", 66, 73),
    Sketcher.Constraint("Equal", 73, 74),
    Sketcher.Constraint("Equal", 72, 75),
    Sketcher.Constraint("Horizontal", 1, 3, 38, 3),
    Sketcher.Constraint("Horizontal", 10, 3, 39, 3),
    Sketcher.Constraint("Horizontal", 8, 3, 40, 3),
    Sketcher.Constraint("Horizontal", 5, 3, 41, 3),
    Sketcher.Constraint("Horizontal", 3, 3, 42, 3),
    Sketcher.Constraint("Horizontal", 13, 3, 43, 3),
    Sketcher.Constraint("Horizontal", 15, 3, 44, 3),
    Sketcher.Constraint("Horizontal", 17, 3, 45, 3),
    Sketcher.Constraint("Horizontal", 19, 3, 46, 3),
    Sketcher.Constraint("Horizontal", 22, 3, 47, 3),
    Sketcher.Constraint("Horizontal", 24, 3, 48, 3),
    Sketcher.Constraint("Horizontal", 26, 3, 49, 3),
    Sketcher.Constraint("Horizontal", 28, 3, 50, 3),
    Sketcher.Constraint("Horizontal", 31, 3, 51, 3),
    Sketcher.Constraint("Horizontal", 35, 3, 69, 3),
    Sketcher.Constraint("Horizontal", 36, 3, 70, 3),
    Sketcher.Constraint("Vertical", 15, 3, 17, 3),
    Sketcher.Constraint("Vertical", 14, 3, 18, 3),
    Sketcher.Constraint("Vertical", 13, 3, 19, 3),
    Sketcher.Constraint("Vertical", 10, 3, 22, 3),
    Sketcher.Constraint("Vertical", 9, 3, 23, 3),
    Sketcher.Constraint("Vertical", 8, 3, 24, 3),
    Sketcher.Constraint("Vertical", 5, 3, 26, 3),
    Sketcher.Constraint("Vertical", 4, 3, 27, 3),
    Sketcher.Constraint("Vertical", 3, 3, 28, 3),
    Sketcher.Constraint("Vertical", 0, 3, 32, 3),
    Sketcher.Constraint("Vertical", 35, 3, 36, 3),
    Sketcher.Constraint("Vertical", 44, 3, 45, 3),
    Sketcher.Constraint("Vertical", 43, 3, 46, 3),
    Sketcher.Constraint("Vertical", 39, 3, 47, 3),
    Sketcher.Constraint("Vertical", 40, 3, 48, 3),
    Sketcher.Constraint("Vertical", 41, 3, 49, 3),
    Sketcher.Constraint("Vertical", 42, 3, 50, 3),
    Sketcher.Constraint("Vertical", 54, 3, 55, 3),
    Sketcher.Constraint("Vertical", 53, 3, 56, 3),
    Sketcher.Constraint("Vertical", 52, 3, 57, 3),
    Sketcher.Constraint("Vertical", 69, 3, 70, 3),
    Sketcher.Constraint("Diameter", 0, 3.6),
    Sketcher.Constraint("Diameter", 1, 3.4),
    Sketcher.Constraint("Diameter", 35, 3.5),
    Sketcher.Constraint("Diameter", 37, 3.2),
    Sketcher.Constraint("DistanceY", -1, 1, 19, 3, 44.112799),
    Sketcher.Constraint("DistanceY", -1, 1, 26, 3, 34.112799),
    Sketcher.Constraint("DistanceX", -1, 1, 39, 3, 45.216099),
    Sketcher.Constraint("DistanceY", -1, 1, 66, 3, 47.219101),
    Sketcher.Constraint("DistanceY", -1, 1, 67, 3, 47.564499),
    Sketcher.Constraint("DistanceX", -1, 1, 1, 3, 23.735971),
    Sketcher.Constraint("DistanceY", -1, 1, 1, 3, 69.856091),
    Sketcher.Constraint("DistanceY", -1, 1, 3, 3, 68.564048),
    Sketcher.Constraint("DistanceY", -1, 1, 5, 3, 66.473479),
    Sketcher.Constraint("DistanceX", -1, 1, 6, 3, 25.150959),
    Sketcher.Constraint("DistanceY", -1, 1, 6, 3, 56.896651),
    Sketcher.Constraint("DistanceX", -1, 1, 7, 3, 20.050012),
    Sketcher.Constraint("DistanceY", -1, 1, 8, 3, 63.675751),
    Sketcher.Constraint("DistanceY", -1, 1, 9, 3, 59.38381),
    Sketcher.Constraint("DistanceY", -1, 1, 10, 3, 60.293139),
    Sketcher.Constraint("DistanceY", -1, 1, 11, 3, 53.021779),
    Sketcher.Constraint("DistanceX", -1, 1, 13, 3, 8.874461),
    Sketcher.Constraint("DistanceY", -1, 1, 13, 3, 56.473479),
    Sketcher.Constraint("DistanceX", -1, 1, 16, 3, 16.22956),
    Sketcher.Constraint("DistanceY", -1, 1, 17, 3, 48.20257),
    Sketcher.Constraint("DistanceX", -1, 1, 20, 3, 21.292079),
    Sketcher.Constraint("DistanceX", -1, 1, 21, 3, 17.24291),
    Sketcher.Constraint("DistanceY", -1, 1, 22, 3, 40.293139),
    Sketcher.Constraint("DistanceY", -1, 1, 23, 3, 41.202468),
    Sketcher.Constraint("DistanceX", -1, 1, 25, 3, 20.087958),
    Sketcher.Constraint("DistanceY", -1, 1, 28, 3, 32.02223),
    Sketcher.Constraint("DistanceY", -1, 1, 32, 3, 34.91189),
    Sketcher.Constraint("DistanceX", -1, 1, 33, 3, 27.895591),
    Sketcher.Constraint("DistanceY", -1, 1, 33, 3, 30.293139),
    Sketcher.Constraint("DistanceY", -1, 1, 34, 3, 70.293139),
    Sketcher.Constraint("DistanceX", -1, 1, 35, 3, 6.895591),
    Sketcher.Constraint("DistanceY", -1, 1, 35, 3, 71.293139),
    Sketcher.Constraint("DistanceY", -1, 1, 36, 3, 29.293139),
    Sketcher.Constraint("DistanceY", -1, 1, 37, 3, 50.293139),
    Sketcher.Constraint("DistanceX", -1, 1, 38, 3, 32.055211),
    Sketcher.Constraint("DistanceX", -1, 1, 43, 3, 46.916721),
    Sketcher.Constraint("DistanceX", -1, 1, 44, 3, 47.786029),
    Sketcher.Constraint("DistanceX", -1, 1, 52, 3, 32.67484),
    Sketcher.Constraint("DistanceX", -1, 1, 54, 3, 42.02446),
    Sketcher.Constraint("DistanceY", -1, 1, 55, 3, 44.002561),
    Sketcher.Constraint("DistanceY", -1, 1, 56, 3, 38.799681),
    Sketcher.Constraint("DistanceX", -1, 1, 58, 3, 33.825809),
    Sketcher.Constraint("DistanceY", -1, 1, 59, 3, 57.07016),
    Sketcher.Constraint("DistanceX", -1, 1, 60, 3, 39.324071),
    Sketcher.Constraint("DistanceX", -1, 1, 64, 3, 30.624231),
    Sketcher.Constraint("DistanceY", -1, 1, 65, 3, 53.037771),
    Sketcher.Constraint("DistanceX", -1, 1, 66, 3, 27.89493),
    Sketcher.Constraint("DistanceX", -1, 1, 68, 3, 29.08552),
    Sketcher.Constraint("DistanceX", -1, 1, 69, 3, 48.895591),
    Sketcher.Constraint("DistanceX", -1, 1, 71, 3, 25.166951),
    Sketcher.Constraint("DistanceY", -1, 1, 72, 3, 61.903461),
    Sketcher.Constraint("DistanceX", -1, 1, 75, 3, 43.560039),
    Sketcher.Constraint("DistanceX", -1, 1, 0, 3, 26.278957),
    Sketcher.Constraint("DistanceY", -1, 1, 0, 3, 65.674388),
    Sketcher.Constraint("DistanceX", -1, 1, 2, 3, 24.226898),
    Sketcher.Constraint("DistanceY", -1, 1, 2, 3, 61.367326),
    Sketcher.Constraint("DistanceX", -1, 1, 3, 3, 19.760858),
    Sketcher.Constraint("DistanceX", -1, 1, 4, 3, 20.162604),
    Sketcher.Constraint("DistanceY", -1, 1, 4, 3, 63.687065),
    Sketcher.Constraint("DistanceX", -1, 1, 5, 3, 16.139886),
    Sketcher.Constraint("DistanceY", -1, 1, 7, 3, 58.927016),
    Sketcher.Constraint("DistanceX", -1, 1, 8, 3, 13.032694),
    Sketcher.Constraint("DistanceX", -1, 1, 9, 3, 15.383356),
    Sketcher.Constraint("DistanceX", -1, 1, 10, 3, 10.575083),
    Sketcher.Constraint("DistanceX", -1, 1, 11, 3, 21.285455),
    Sketcher.Constraint("DistanceX", -1, 1, 12, 3, 17.222152),
    Sketcher.Constraint("DistanceY", -1, 1, 12, 3, 55.002134),
    Sketcher.Constraint("DistanceX", -1, 1, 14, 3, 12.767587),
    Sketcher.Constraint("DistanceY", -1, 1, 14, 3, 53.508696),
    Sketcher.Constraint("DistanceX", -1, 1, 15, 3, 8.005153),
    Sketcher.Constraint("DistanceY", -1, 1, 15, 3, 52.383708),
    Sketcher.Constraint("DistanceY", -1, 1, 16, 3, 50.267554),
    Sketcher.Constraint("DistanceY", -1, 1, 18, 3, 47.077582),
    Sketcher.Constraint("DistanceY", -1, 1, 20, 3, 47.548507),
    Sketcher.Constraint("DistanceY", -1, 1, 21, 3, 45.537373),
    Sketcher.Constraint("DistanceY", -1, 1, 24, 3, 36.910527),
    Sketcher.Constraint("DistanceY", -1, 1, 25, 3, 41.624933),
    Sketcher.Constraint("DistanceY", -1, 1, 27, 3, 36.899213),
    Sketcher.Constraint("DistanceX", -1, 1, 29, 3, 30.640223),
    Sketcher.Constraint("DistanceY", -1, 1, 29, 3, 43.689627),
    Sketcher.Constraint("DistanceX", -1, 1, 30, 3, 24.275508),
    Sketcher.Constraint("DistanceY", -1, 1, 30, 3, 39.202966),
    Sketcher.Constraint("DistanceX", -1, 1, 31, 3, 23.737357),
    Sketcher.Constraint("DistanceY", -1, 1, 31, 3, 30.730187),
    Sketcher.Constraint("DistanceX", -1, 1, 34, 3, 27.894235),
    Sketcher.Constraint("DistanceX", -1, 1, 37, 3, 24.821553),
    Sketcher.Constraint("DistanceX", -1, 1, 40, 3, 42.758488),
    Sketcher.Constraint("DistanceX", -1, 1, 41, 3, 39.651296),
    Sketcher.Constraint("DistanceX", -1, 1, 42, 3, 36.030324),
    Sketcher.Constraint("DistanceX", -1, 1, 51, 3, 32.053825),
    Sketcher.Constraint("DistanceY", -1, 1, 52, 3, 65.002154),
    Sketcher.Constraint("DistanceX", -1, 1, 53, 3, 38.244347),
    Sketcher.Constraint("DistanceY", -1, 1, 53, 3, 61.786597),
    Sketcher.Constraint("DistanceY", -1, 1, 54, 3, 56.583717),
    Sketcher.Constraint("DistanceY", -1, 1, 57, 3, 35.584124),
    Sketcher.Constraint("DistanceY", -1, 1, 58, 3, 60.339504),
    Sketcher.Constraint("DistanceX", -1, 1, 59, 3, 37.391323),
    Sketcher.Constraint("DistanceY", -1, 1, 60, 3, 52.635527),
    Sketcher.Constraint("DistanceX", -1, 1, 61, 3, 39.291724),
    Sketcher.Constraint("DistanceY", -1, 1, 61, 3, 47.798126),
    Sketcher.Constraint("DistanceX", -1, 1, 62, 3, 37.299843),
    Sketcher.Constraint("DistanceY", -1, 1, 62, 3, 43.389736),
    Sketcher.Constraint("DistanceX", -1, 1, 63, 3, 33.690928),
    Sketcher.Constraint("DistanceY", -1, 1, 63, 3, 40.168367),
    Sketcher.Constraint("DistanceY", -1, 1, 64, 3, 56.903275),
    Sketcher.Constraint("DistanceX", -1, 1, 65, 3, 34.499103),
    Sketcher.Constraint("DistanceX", -1, 1, 67, 3, 34.505727),
    Sketcher.Constraint("DistanceY", -1, 1, 68, 3, 38.687925),
    Sketcher.Constraint("DistanceY", -1, 1, 71, 3, 43.683003),
    Sketcher.Constraint("DistanceX", -1, 1, 72, 3, 29.034605),
    Sketcher.Constraint("DistanceX", -1, 1, 73, 3, 28.068774),
    Sketcher.Constraint("DistanceY", -1, 1, 73, 3, 53.405946),
    Sketcher.Constraint("DistanceX", -1, 1, 74, 3, 30.911116),
    Sketcher.Constraint("DistanceY", -1, 1, 74, 3, 50.323947),
    Sketcher.Constraint("DistanceY", -1, 1, 75, 3, 50.235976),
])
pocket3 = body.newObject("PartDesign::Pocket", "Pocket002")
pocket3.Profile = sketch5
pocket3.Length = 5.5
pocket3.Reversed = True

doc.recompute()
